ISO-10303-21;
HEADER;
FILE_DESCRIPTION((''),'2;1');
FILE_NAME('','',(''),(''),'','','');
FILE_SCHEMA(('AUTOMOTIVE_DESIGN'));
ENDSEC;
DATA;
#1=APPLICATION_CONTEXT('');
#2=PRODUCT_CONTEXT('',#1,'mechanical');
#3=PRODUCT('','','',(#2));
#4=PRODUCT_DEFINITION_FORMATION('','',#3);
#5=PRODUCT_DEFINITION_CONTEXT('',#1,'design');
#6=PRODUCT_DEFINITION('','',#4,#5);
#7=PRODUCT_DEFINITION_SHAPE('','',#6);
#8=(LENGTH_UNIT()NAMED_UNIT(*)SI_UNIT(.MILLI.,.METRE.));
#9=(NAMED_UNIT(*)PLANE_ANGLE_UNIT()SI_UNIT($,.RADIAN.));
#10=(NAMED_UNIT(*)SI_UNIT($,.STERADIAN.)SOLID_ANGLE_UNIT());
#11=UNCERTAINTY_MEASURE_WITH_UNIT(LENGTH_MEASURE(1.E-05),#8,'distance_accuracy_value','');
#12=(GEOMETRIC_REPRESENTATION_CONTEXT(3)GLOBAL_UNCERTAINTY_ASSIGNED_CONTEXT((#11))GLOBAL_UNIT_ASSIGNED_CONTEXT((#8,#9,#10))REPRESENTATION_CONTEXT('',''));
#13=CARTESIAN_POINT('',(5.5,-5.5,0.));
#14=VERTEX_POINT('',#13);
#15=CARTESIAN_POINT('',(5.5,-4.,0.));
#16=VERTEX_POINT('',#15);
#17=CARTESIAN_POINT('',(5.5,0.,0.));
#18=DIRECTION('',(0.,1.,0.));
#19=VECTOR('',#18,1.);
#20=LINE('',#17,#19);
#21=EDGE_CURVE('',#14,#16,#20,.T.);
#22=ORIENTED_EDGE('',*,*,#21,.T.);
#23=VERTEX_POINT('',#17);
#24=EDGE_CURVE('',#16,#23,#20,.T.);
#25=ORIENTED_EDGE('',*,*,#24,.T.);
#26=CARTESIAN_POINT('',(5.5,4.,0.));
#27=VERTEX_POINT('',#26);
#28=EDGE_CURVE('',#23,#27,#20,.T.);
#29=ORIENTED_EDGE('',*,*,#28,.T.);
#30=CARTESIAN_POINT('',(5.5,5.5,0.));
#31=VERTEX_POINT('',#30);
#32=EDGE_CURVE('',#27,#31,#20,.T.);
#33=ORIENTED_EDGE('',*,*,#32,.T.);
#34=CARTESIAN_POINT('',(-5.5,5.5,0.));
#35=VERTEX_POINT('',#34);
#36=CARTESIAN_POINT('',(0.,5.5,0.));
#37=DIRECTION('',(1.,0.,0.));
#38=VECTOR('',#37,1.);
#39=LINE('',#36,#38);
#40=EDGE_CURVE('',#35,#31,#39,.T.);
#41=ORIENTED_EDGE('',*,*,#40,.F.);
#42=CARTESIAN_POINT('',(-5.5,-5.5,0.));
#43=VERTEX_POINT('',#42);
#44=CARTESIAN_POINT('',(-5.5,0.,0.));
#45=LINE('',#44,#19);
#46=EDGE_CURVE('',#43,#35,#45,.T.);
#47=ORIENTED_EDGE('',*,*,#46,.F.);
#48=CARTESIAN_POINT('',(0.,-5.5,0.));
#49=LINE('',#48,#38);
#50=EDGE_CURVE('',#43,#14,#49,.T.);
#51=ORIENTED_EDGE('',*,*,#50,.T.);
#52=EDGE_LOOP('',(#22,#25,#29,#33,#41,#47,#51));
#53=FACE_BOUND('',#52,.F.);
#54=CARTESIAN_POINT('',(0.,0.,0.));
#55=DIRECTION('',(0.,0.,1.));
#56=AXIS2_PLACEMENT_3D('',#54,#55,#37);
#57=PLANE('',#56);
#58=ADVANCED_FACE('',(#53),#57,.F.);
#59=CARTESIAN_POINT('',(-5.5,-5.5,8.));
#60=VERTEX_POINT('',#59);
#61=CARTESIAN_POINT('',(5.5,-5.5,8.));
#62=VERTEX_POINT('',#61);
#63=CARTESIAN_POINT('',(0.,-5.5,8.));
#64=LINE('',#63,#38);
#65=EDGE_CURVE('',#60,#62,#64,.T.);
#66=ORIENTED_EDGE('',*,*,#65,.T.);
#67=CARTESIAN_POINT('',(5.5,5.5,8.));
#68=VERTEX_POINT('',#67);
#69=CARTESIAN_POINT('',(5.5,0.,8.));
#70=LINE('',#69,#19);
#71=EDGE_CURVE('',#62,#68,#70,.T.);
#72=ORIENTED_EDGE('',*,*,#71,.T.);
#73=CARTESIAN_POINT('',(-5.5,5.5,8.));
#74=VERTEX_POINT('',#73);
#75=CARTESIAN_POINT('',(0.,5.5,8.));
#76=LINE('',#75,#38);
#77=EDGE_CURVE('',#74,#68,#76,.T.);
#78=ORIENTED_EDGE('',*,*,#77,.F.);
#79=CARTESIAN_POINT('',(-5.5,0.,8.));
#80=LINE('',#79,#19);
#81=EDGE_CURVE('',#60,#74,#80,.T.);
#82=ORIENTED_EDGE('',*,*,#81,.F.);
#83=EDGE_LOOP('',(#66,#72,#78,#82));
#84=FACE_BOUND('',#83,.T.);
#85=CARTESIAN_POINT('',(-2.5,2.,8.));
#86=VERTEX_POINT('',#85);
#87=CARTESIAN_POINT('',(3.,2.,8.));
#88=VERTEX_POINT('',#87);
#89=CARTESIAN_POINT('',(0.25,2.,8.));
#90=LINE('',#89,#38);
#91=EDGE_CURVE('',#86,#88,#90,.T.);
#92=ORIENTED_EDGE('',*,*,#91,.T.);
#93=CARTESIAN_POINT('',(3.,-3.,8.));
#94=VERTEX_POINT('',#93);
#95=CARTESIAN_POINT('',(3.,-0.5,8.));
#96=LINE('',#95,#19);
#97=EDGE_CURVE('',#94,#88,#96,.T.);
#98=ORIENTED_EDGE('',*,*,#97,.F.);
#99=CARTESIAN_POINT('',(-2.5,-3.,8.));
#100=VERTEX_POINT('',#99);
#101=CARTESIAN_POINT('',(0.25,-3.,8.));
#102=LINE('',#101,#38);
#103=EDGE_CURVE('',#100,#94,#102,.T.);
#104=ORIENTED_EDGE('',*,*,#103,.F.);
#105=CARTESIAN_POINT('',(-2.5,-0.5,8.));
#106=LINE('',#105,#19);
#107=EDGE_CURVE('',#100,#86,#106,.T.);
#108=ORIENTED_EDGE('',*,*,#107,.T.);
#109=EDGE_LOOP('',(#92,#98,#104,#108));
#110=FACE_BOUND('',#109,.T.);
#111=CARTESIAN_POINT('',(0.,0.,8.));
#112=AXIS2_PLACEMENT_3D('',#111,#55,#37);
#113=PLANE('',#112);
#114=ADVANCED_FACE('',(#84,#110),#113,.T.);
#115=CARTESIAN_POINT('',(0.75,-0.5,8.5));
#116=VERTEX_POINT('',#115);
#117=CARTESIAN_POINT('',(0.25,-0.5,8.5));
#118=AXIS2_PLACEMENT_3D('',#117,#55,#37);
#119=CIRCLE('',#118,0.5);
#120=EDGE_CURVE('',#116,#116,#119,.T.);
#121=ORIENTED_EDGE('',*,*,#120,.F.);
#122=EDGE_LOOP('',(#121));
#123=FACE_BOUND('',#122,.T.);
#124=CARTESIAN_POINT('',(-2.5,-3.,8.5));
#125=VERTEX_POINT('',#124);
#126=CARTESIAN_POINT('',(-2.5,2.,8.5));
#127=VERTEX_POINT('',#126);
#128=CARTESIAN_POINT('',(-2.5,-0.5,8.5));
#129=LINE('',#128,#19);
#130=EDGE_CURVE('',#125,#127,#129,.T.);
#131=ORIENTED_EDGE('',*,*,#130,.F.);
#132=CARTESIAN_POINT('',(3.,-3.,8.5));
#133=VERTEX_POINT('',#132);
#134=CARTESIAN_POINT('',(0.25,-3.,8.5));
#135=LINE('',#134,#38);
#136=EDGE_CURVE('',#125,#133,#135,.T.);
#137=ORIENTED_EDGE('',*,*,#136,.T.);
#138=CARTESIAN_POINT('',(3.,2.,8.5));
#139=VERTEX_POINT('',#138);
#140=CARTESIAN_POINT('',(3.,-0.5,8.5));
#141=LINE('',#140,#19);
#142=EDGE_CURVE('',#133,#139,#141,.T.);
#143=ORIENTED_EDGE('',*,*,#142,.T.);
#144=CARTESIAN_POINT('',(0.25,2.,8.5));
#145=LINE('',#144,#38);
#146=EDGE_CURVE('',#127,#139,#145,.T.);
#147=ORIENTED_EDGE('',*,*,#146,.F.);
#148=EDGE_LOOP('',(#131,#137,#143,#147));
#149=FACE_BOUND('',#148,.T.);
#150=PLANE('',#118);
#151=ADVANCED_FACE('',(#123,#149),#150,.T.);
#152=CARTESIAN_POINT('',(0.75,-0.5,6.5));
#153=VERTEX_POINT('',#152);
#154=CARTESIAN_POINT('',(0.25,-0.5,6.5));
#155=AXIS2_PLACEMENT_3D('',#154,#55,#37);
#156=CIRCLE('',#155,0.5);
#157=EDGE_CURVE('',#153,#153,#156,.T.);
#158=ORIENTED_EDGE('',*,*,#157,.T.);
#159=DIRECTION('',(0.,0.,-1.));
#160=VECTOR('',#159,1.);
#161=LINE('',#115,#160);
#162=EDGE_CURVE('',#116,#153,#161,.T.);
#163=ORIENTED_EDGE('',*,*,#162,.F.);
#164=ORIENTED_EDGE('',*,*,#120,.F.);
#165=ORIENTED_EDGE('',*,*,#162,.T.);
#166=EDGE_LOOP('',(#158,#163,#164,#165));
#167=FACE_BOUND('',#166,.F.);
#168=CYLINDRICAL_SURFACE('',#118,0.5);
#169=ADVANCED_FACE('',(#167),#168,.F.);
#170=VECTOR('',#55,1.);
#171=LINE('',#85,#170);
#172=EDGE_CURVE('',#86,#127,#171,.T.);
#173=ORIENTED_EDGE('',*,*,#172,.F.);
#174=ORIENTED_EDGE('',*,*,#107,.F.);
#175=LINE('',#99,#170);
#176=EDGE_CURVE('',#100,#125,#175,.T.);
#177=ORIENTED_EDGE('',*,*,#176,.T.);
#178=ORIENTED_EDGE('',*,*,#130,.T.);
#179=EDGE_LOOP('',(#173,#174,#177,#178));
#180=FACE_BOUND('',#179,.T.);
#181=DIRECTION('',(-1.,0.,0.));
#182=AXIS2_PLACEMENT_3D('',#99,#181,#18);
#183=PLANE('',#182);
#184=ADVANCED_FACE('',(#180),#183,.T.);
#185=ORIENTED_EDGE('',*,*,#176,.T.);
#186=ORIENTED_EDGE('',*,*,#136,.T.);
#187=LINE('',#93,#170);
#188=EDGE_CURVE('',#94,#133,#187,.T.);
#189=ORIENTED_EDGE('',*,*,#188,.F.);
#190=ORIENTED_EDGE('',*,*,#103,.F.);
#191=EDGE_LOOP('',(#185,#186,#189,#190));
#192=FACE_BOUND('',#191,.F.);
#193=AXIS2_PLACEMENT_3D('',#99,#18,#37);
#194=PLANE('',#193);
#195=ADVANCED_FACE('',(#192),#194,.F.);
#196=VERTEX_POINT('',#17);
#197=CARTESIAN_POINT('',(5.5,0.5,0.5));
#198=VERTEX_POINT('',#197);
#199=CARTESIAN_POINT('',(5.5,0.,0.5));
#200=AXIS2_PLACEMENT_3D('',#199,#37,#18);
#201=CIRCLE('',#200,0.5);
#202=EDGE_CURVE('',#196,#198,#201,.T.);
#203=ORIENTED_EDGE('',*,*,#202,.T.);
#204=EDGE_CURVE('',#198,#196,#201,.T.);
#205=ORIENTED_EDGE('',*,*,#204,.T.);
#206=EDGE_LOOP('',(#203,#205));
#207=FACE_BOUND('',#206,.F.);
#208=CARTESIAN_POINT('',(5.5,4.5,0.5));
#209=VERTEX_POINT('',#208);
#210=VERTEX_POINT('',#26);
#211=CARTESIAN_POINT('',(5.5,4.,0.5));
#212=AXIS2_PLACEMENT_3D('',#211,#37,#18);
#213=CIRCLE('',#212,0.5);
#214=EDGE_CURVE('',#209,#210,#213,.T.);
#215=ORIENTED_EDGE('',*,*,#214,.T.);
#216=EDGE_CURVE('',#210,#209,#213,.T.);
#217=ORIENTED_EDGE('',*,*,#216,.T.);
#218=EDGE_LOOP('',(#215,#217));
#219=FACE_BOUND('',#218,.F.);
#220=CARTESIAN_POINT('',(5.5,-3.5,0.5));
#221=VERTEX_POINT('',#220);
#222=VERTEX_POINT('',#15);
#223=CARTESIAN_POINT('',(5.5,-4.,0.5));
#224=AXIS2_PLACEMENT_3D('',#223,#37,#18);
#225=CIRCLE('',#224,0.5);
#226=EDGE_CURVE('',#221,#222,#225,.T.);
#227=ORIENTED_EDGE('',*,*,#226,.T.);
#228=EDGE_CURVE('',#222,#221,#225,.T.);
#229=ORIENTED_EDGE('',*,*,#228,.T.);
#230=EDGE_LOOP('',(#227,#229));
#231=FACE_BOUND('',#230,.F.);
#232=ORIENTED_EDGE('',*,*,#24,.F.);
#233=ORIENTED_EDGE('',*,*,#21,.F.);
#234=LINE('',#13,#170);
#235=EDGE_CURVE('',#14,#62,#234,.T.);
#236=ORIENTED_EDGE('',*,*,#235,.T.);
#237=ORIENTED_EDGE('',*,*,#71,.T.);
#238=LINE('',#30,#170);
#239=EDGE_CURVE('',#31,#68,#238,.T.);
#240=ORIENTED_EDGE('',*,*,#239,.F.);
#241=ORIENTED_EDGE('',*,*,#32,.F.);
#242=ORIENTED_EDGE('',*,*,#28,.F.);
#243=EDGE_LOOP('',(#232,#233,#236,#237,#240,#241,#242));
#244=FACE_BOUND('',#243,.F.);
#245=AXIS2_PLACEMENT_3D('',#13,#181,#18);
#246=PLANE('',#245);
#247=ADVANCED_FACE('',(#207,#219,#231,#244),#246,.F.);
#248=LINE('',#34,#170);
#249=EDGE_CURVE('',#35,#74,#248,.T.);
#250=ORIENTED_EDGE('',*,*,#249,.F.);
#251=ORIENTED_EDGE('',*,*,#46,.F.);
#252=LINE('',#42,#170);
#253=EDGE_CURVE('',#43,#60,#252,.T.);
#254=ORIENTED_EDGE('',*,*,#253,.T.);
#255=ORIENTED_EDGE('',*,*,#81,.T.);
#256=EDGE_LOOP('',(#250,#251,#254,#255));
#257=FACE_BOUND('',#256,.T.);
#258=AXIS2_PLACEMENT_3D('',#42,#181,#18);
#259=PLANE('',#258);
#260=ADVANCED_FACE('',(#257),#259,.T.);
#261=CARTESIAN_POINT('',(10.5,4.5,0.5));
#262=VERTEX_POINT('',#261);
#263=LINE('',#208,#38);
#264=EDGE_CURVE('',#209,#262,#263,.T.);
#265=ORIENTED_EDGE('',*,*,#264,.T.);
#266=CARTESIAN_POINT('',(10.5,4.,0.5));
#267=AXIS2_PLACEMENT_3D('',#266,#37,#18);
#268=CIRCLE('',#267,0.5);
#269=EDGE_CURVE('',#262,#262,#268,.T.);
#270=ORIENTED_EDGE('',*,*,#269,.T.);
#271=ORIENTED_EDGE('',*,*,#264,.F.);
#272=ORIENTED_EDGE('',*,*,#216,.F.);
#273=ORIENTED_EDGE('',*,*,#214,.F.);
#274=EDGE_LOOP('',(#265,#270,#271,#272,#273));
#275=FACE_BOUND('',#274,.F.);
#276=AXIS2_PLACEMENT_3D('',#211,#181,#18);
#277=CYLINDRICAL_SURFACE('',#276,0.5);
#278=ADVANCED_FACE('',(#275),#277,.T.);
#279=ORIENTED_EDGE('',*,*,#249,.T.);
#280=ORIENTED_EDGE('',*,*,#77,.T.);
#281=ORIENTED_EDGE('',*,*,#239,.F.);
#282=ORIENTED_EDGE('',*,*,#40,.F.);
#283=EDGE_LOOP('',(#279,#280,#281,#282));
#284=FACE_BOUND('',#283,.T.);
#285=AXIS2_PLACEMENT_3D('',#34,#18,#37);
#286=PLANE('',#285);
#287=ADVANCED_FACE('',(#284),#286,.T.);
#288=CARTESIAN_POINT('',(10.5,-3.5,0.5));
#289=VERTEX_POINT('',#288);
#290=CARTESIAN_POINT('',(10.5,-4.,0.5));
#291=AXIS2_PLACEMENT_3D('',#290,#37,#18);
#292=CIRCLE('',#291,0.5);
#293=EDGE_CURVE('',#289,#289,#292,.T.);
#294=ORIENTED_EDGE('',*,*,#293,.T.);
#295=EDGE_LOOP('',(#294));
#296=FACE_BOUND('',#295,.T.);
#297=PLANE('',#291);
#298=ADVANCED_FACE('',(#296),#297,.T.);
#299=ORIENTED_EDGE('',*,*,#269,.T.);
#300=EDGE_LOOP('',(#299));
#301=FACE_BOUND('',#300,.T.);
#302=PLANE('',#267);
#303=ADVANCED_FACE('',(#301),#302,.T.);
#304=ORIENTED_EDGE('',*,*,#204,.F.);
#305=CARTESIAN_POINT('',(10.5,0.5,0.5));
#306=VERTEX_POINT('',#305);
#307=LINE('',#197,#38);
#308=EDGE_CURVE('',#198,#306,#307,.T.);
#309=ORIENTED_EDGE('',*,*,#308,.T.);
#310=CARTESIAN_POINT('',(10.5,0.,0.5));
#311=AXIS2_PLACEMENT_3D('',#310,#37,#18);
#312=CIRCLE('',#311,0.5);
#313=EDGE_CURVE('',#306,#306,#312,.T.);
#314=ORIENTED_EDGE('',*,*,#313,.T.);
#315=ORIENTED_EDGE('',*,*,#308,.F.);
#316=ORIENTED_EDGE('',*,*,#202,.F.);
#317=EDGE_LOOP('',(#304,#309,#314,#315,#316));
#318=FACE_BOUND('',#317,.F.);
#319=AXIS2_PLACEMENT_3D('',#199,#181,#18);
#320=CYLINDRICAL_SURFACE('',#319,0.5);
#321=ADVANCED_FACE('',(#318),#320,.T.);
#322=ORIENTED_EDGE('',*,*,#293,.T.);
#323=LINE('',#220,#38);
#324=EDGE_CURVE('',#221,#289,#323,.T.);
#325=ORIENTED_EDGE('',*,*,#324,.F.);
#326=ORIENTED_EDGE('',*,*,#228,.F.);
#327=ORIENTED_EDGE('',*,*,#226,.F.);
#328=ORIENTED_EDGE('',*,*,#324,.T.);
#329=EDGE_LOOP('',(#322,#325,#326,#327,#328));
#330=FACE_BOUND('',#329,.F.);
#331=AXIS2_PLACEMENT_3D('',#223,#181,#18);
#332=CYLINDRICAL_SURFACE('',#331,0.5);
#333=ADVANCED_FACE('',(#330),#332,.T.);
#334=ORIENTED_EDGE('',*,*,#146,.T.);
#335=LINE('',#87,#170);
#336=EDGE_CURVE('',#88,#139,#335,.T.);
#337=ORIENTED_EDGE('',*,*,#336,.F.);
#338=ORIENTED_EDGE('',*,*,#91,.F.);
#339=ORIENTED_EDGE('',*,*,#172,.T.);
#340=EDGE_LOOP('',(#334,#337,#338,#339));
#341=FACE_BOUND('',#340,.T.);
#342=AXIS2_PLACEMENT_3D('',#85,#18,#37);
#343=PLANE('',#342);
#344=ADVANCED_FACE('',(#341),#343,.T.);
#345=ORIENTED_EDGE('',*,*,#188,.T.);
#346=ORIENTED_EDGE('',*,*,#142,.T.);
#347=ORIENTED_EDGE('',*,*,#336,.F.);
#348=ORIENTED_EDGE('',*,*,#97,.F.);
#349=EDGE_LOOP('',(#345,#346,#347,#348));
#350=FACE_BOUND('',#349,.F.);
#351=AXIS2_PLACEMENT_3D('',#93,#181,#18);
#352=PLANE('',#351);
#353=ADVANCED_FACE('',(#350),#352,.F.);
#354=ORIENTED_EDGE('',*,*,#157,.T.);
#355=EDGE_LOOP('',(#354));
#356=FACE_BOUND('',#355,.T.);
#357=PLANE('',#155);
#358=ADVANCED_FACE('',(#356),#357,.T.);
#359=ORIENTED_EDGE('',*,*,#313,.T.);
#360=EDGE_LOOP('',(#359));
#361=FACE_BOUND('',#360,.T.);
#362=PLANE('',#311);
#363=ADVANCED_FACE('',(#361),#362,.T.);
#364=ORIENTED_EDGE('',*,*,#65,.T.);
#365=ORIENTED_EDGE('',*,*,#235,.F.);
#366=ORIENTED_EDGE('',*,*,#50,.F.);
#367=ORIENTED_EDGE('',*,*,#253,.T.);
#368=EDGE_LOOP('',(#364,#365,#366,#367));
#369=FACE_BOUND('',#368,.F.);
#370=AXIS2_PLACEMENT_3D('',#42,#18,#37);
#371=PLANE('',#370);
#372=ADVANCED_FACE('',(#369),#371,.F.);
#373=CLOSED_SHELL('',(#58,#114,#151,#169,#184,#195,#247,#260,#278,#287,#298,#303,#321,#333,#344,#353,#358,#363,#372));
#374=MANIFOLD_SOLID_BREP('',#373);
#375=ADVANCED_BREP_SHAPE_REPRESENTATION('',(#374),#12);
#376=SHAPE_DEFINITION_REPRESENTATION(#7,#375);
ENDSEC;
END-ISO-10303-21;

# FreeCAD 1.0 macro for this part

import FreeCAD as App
import Part
import Sketcher
from FreeCAD import Vector
Q = App.Units.Quantity

doc = App.newDocument("Part")
body = doc.addObject("PartDesign::Body", "Body")

sketch1 = body.newObject("Sketcher::SketchObject", "Sketch")
sketch1.AttachmentSupport = (doc.getObject("XY_Plane"), [""])
sketch1.MapMode = "FlatFace"
sketch1.addGeometry(Part.LineSegment(Vector(-5.5, 5.5, 0), Vector(-5.5, -5.5, 0)), False)
sketch1.addGeometry(Part.LineSegment(Vector(-5.5, -5.5, 0), Vector(5.5, -5.5, 0)), False)
sketch1.addGeometry(Part.LineSegment(Vector(5.5, -5.5, 0), Vector(5.5, 5.5, 0)), False)
sketch1.addGeometry(Part.LineSegment(Vector(5.5, 5.5, 0), Vector(-5.5, 5.5, 0)), False)
sketch1.addConstraint(Sketcher.Constraint("Coincident", 0, 2, 1, 1))
sketch1.addConstraint(Sketcher.Constraint("Coincident", 1, 2, 2, 1))
sketch1.addConstraint(Sketcher.Constraint("Coincident", 2, 2, 3, 1))
sketch1.addConstraint(Sketcher.Constraint("Coincident", 3, 2, 0, 1))
sketch1.addConstraint(Sketcher.Constraint("Vertical", 0))
sketch1.addConstraint(Sketcher.Constraint("Horizontal", 1))
sketch1.addConstraint(Sketcher.Constraint("Vertical", 2))
sketch1.addConstraint(Sketcher.Constraint("Horizontal", 3))
sketch1.addConstraint(Sketcher.Constraint("Symmetric", 0, 2, 2, 2, -1, 1))
sketch1.addConstraint(Sketcher.Constraint("Equal", 3, 0))
sketch1.addConstraint(Sketcher.Constraint("DistanceX", 1, 1, 1, 2, Q("11 mm")))
pad1 = body.newObject("PartDesign::Pad", "Pad")
pad1.Profile = sketch1
pad1.Length = 8

sketch2 = body.newObject("Sketcher::SketchObject", "Sketch001")
sketch2.AttachmentSupport = (doc.getObject("YZ_Plane"), [""])
sketch2.MapMode = "FlatFace"
sketch2.AttachmentOffset = App.Placement(Vector(0, 0, 5.5), App.Rotation())
sketch2.addGeometry(Part.Circle(Vector(-4, 0.5, 0), Vector(0, 0, 1), 0.5), False)
sketch2.addGeometry(Part.Circle(Vector(0, 0.5, 0), Vector(0, 0, 1), 0.5), False)
sketch2.addGeometry(Part.Circle(Vector(4, 0.5, 0), Vector(0, 0, 1), 0.5), False)
sketch2.addConstraint(Sketcher.Constraint("Equal", 0, 1))
sketch2.addConstraint(Sketcher.Constraint("Equal", 1, 2))
sketch2.addConstraint(Sketcher.Constraint("Symmetric", 0, 3, 2, 3, -2))
sketch2.addConstraint(Sketcher.Constraint("PointOnObject", 1, 3, -2))
sketch2.addConstraint(Sketcher.Constraint("Horizontal", 0, 3, 1, 3))
sketch2.addConstraint(Sketcher.Constraint("Diameter", 0, Q("1 mm")))
sketch2.addConstraint(Sketcher.Constraint("DistanceX", 0, 3, -1, 1, Q("4 mm")))
sketch2.addConstraint(Sketcher.Constraint("DistanceY", -1, 1, 0, 3, Q("0.5 mm")))
pad2 = body.newObject("PartDesign::Pad", "Pad001")
pad2.Profile = sketch2
pad2.Length = 5

sketch3 = body.newObject("Sketcher::SketchObject", "Sketch002")
sketch3.AttachmentSupport = (doc.getObject("XY_Plane"), [""])
sketch3.MapMode = "FlatFace"
sketch3.AttachmentOffset = App.Placement(Vector(0, 0, 8), App.Rotation())
sketch3.addGeometry(Part.LineSegment(Vector(-2.5, 2, 0), Vector(-2.5, -3, 0)), False)
sketch3.addGeometry(Part.LineSegment(Vector(-2.5, -3, 0), Vector(3, -3, 0)), False)
sketch3.addGeometry(Part.LineSegment(Vector(3, -3, 0), Vector(3, 2, 0)), False)
sketch3.addGeometry(Part.LineSegment(Vector(3, 2, 0), Vector(-2.5, 2, 0)), False)
sketch3.addConstraint(Sketcher.Constraint("Coincident", 0, 2, 1, 1))
sketch3.addConstraint(Sketcher.Constraint("Coincident", 1, 2, 2, 1))
sketch3.addConstraint(Sketcher.Constraint("Coincident", 2, 2, 3, 1))
sketch3.addConstraint(Sketcher.Constraint("Coincident", 3, 2, 0, 1))
sketch3.addConstraint(Sketcher.Constraint("Vertical", 0))
sketch3.addConstraint(Sketcher.Constraint("Horizontal", 1))
sketch3.addConstraint(Sketcher.Constraint("Vertical", 2))
sketch3.addConstraint(Sketcher.Constraint("Horizontal", 3))
sketch3.addConstraint(Sketcher.Constraint("DistanceY", 0, 2, 0, 1, Q("5 mm")))
sketch3.addConstraint(Sketcher.Constraint("DistanceX", 1, 1, 1, 2, Q("5.5 mm")))
sketch3.addConstraint(Sketcher.Constraint("DistanceY", 0, 2, -1, 1, Q("3 mm")))
sketch3.addConstraint(Sketcher.Constraint("DistanceX", -1, 1, 1, 2, Q("3 mm")))
pad3 = body.newObject("PartDesign::Pad", "Pad002")
pad3.Profile = sketch3
pad3.Length = 0.5

sketch4 = body.newObject("Sketcher::SketchObject", "Sketch003")
sketch4.AttachmentSupport = (doc.getObject("XY_Plane"), [""])
sketch4.MapMode = "FlatFace"
sketch4.AttachmentOffset = App.Placement(Vector(0, 0, 8.5), App.Rotation())
sketch4.addGeometry(Part.Circle(Vector(0.25, -0.5, 0), Vector(0, 0, 1), 0.5), False)
sketch4.addConstraint(Sketcher.Constraint("Diameter", 0, Q("1 mm")))
sketch4.addConstraint(Sketcher.Constraint("DistanceY", 0, 3, -1, 1, Q("0.5 mm")))
sketch4.addConstraint(Sketcher.Constraint("DistanceX", -1, 1, 0, 3, Q("0.25 mm")))
pocket1 = body.newObject("PartDesign::Pocket", "Pocket")
pocket1.Profile = sketch4
pocket1.Length = 2

doc.recompute()
